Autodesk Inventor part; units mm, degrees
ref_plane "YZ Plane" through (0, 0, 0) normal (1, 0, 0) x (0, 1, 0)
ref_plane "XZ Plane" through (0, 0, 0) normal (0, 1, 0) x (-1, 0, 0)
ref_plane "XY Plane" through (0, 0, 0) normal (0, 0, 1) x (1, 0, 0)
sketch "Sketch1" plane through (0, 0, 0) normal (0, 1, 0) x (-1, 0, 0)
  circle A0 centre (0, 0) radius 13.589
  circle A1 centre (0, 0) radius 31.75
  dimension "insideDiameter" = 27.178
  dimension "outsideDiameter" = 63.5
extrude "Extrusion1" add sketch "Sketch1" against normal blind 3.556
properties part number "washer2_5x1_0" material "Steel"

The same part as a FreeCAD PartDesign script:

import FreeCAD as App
import Part
import Sketcher
from FreeCAD import Vector
Q = App.Units.Quantity

doc = App.newDocument("Part")
params = doc.addObject("Spreadsheet::Sheet", "Params")
for row, (alias, value) in enumerate([
    ("sketch1_diameter", "2.5 in"),
    ("sketch1_diameter2", "1.07 in"),
    ("pad1_length", "0.14 in"),
], start=1):
    params.set(f"A{row}", alias)
    params.set(f"B{row}", "=" + value)
    params.setAlias(f"B{row}", alias)

body = doc.addObject("PartDesign::Body", "Body")

sketch1 = doc.addObject("Sketcher::SketchObject", "Sketch")
body.addObject(sketch1)
sketch1.AttachmentSupport = (doc.XZ_Plane, [""])
sketch1.MapMode = "FlatFace"
sketch1.addGeometry(Part.Circle(Vector(0, 0, 0), Vector(0, 0, 1), 32), False)
sketch1.addGeometry(Part.Circle(Vector(0, 0, 0), Vector(0, 0, 1), 14), False)
sketch1.addConstraint(Sketcher.Constraint("Coincident", 0, 3, -1, 1))
sketch1.addConstraint(Sketcher.Constraint("Coincident", 1, 3, -1, 1))
sketch1.addConstraint(Sketcher.Constraint("Diameter", 0, Q("2.5 in")))
sketch1.addConstraint(Sketcher.Constraint("Diameter", 1, Q("1.07 in")))
sketch1.setExpression("Constraints[2]", "Params.sketch1_diameter")
sketch1.setExpression("Constraints[3]", "Params.sketch1_diameter2")
pad1 = doc.addObject("PartDesign::Pad", "Pad")
body.addObject(pad1)
pad1.Profile = sketch1
pad1.setExpression("Length", "Params.pad1_length")

doc.recompute()
